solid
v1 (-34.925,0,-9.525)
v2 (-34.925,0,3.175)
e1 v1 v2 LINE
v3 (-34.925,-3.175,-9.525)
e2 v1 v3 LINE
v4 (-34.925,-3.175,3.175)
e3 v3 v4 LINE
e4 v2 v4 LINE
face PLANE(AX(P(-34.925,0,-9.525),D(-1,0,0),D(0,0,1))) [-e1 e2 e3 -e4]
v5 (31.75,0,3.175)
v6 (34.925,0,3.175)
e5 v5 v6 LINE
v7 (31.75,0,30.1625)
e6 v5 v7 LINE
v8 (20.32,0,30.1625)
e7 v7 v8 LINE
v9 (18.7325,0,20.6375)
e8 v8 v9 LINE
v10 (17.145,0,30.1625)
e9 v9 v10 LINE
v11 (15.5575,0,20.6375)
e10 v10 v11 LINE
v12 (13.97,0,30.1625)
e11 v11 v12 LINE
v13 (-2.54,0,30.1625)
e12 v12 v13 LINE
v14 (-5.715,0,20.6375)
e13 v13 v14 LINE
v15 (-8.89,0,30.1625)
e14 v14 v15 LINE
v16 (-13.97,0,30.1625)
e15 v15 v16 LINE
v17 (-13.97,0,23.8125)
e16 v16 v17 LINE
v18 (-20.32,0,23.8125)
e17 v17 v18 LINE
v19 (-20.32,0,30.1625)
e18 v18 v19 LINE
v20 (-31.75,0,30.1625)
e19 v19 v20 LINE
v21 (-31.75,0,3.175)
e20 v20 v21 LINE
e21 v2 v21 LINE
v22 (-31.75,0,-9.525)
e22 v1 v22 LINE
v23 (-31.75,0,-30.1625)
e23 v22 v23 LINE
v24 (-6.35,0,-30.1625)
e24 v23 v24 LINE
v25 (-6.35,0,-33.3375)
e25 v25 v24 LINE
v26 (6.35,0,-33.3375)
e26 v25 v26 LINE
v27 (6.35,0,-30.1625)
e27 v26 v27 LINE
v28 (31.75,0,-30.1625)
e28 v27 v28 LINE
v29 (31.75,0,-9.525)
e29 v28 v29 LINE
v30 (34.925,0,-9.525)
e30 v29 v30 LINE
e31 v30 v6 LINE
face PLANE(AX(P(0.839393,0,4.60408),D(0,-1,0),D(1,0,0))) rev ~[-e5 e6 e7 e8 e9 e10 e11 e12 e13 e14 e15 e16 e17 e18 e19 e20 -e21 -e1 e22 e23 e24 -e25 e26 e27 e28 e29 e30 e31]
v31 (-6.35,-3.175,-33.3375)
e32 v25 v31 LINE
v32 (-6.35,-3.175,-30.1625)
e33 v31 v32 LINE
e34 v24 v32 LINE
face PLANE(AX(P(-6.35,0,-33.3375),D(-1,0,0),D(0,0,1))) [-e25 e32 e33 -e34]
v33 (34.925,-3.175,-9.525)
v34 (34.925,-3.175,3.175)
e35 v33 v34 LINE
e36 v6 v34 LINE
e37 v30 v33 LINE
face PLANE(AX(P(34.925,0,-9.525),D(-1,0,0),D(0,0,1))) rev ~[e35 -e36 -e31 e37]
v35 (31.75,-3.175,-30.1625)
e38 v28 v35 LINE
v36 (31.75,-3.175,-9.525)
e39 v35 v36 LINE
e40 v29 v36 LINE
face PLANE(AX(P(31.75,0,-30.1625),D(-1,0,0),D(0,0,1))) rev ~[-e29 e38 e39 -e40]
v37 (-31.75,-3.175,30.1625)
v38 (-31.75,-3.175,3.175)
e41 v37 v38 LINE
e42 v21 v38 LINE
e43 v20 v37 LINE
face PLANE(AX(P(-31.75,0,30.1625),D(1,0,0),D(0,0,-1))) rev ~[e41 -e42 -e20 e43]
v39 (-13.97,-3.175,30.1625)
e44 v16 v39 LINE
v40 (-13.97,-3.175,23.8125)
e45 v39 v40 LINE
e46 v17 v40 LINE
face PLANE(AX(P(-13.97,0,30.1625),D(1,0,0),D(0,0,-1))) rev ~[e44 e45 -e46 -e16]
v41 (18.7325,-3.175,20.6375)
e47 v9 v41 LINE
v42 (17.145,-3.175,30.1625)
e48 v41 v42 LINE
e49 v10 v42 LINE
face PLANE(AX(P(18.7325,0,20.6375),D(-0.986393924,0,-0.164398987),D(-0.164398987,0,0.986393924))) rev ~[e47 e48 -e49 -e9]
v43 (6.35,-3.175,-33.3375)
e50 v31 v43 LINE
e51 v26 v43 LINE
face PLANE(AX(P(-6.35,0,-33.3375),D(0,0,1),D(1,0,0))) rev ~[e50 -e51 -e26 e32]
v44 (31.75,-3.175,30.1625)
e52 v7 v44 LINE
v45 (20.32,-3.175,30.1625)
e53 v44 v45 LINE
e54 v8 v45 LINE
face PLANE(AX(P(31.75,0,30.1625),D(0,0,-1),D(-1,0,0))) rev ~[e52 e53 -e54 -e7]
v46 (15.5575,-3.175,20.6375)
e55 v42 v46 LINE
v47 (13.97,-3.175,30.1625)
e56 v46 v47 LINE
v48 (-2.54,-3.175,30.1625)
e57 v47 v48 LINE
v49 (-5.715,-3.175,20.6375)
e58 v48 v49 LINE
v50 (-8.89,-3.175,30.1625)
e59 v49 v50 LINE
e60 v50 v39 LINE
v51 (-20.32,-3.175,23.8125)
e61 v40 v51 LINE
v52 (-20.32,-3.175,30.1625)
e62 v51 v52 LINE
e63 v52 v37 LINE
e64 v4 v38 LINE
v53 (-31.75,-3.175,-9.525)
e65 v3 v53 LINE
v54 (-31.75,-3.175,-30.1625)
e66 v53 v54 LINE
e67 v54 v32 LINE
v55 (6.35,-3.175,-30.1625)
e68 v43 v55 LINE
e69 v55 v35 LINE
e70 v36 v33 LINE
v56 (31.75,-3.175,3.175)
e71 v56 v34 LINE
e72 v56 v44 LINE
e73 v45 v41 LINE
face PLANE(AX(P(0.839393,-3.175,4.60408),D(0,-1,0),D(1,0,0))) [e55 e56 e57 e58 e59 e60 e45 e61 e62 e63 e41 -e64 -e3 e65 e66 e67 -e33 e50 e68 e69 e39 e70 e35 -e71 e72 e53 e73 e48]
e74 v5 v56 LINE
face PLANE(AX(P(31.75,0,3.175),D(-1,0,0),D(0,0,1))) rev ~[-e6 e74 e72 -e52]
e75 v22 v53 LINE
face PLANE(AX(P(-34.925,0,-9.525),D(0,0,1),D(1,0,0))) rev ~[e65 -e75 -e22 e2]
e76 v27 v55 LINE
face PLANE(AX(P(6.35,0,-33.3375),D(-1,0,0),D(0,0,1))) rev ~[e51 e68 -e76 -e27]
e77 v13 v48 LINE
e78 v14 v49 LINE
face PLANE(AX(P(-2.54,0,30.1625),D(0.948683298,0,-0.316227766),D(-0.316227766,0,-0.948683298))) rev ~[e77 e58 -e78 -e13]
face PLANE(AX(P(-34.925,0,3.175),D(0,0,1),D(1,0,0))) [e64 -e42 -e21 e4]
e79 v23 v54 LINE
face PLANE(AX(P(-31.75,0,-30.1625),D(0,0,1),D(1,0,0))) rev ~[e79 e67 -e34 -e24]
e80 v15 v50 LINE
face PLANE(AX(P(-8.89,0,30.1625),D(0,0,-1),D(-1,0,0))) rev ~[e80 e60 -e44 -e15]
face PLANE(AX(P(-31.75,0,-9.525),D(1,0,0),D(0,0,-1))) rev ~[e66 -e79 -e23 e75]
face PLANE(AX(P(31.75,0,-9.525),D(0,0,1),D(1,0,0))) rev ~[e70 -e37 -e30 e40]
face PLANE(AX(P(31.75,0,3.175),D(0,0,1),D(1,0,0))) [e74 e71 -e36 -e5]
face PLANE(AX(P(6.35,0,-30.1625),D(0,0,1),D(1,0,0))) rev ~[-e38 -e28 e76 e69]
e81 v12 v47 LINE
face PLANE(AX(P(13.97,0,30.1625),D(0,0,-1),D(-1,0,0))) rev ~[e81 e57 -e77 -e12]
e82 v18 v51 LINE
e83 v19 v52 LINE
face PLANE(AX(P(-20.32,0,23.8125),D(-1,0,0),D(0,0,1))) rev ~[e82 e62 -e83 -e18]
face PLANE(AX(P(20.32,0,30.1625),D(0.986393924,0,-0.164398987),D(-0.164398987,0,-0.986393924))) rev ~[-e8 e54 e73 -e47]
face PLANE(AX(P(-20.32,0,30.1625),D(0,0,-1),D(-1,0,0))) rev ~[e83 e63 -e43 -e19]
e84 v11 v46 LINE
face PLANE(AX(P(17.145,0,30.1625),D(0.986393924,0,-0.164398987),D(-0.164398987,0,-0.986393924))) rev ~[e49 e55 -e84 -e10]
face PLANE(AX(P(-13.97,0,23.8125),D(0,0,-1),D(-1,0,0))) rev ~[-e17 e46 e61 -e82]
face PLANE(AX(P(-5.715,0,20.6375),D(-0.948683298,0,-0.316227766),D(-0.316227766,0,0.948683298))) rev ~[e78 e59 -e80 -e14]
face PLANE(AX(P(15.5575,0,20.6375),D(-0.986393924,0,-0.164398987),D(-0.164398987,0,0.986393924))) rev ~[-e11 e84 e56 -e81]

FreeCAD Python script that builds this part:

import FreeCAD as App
import Part
import Sketcher

V = App.Vector
Q = App.Units.Quantity

doc = App.newDocument("Part")
body = doc.addObject("PartDesign::Body", "Body")

# Sketch on XZ plane
sketch1 = body.newObject("Sketcher::SketchObject", "Sketch")
sketch1.AttachmentSupport = (doc.getObject("XZ_Plane"), [""])
sketch1.MapMode = "FlatFace"
sketch1.addGeometry([
    Part.LineSegment(V(-20.32, 30.1625, 0), V(-31.75, 30.1625, 0)),  # 0
    Part.LineSegment(V(-31.75, 30.1625, 0), V(-31.75, 3.175, 0)),  # 1
    Part.LineSegment(V(-31.75, 3.175, 0), V(-34.925, 3.175, 0)),  # 2
    Part.LineSegment(V(-34.925, 3.175, 0), V(-34.925, -9.525, 0)),  # 3
    Part.LineSegment(V(-34.925, -9.525, 0), V(-31.75, -9.525, 0)),  # 4
    Part.LineSegment(V(-31.75, -9.525, 0), V(-31.75, -30.1625, 0)),  # 5
    Part.LineSegment(V(-31.75, -30.1625, 0), V(-6.35, -30.1625, 0)),  # 6
    Part.LineSegment(V(-6.35, -30.1625, 0), V(-6.35, -33.3375, 0)),  # 7
    Part.LineSegment(V(-6.35, -33.3375, 0), V(6.35, -33.3375, 0)),  # 8
    Part.LineSegment(V(6.35, -33.3375, 0), V(6.35, -30.1625, 0)),  # 9
    Part.LineSegment(V(6.35, -30.1625, 0), V(31.75, -30.1625, 0)),  # 10
    Part.LineSegment(V(31.75, -30.1625, 0), V(31.75, -9.525, 0)),  # 11
    Part.LineSegment(V(31.75, -9.525, 0), V(34.925, -9.525, 0)),  # 12
    Part.LineSegment(V(34.925, -9.525, 0), V(34.925, 3.175, 0)),  # 13
    Part.LineSegment(V(34.925, 3.175, 0), V(31.75, 3.175, 0)),  # 14
    Part.LineSegment(V(31.75, 3.175, 0), V(31.75, 30.1625, 0)),  # 15
    Part.LineSegment(V(31.75, 30.1625, 0), V(20.32, 30.1625, 0)),  # 16
    Part.LineSegment(V(20.32, 30.1625, 0), V(18.7325, 20.6375, 0)),  # 17
    Part.LineSegment(V(18.7325, 20.6375, 0), V(17.145, 30.1625, 0)),  # 18
    Part.LineSegment(V(17.145, 30.1625, 0), V(15.5575, 20.6375, 0)),  # 19
    Part.LineSegment(V(15.5575, 20.6375, 0), V(13.97, 30.1625, 0)),  # 20
    Part.LineSegment(V(13.97, 30.1625, 0), V(-2.54, 30.1625, 0)),  # 21
    Part.LineSegment(V(-2.54, 30.1625, 0), V(-5.715, 20.6375, 0)),  # 22
    Part.LineSegment(V(-5.715, 20.6375, 0), V(-8.89, 30.1625, 0)),  # 23
    Part.LineSegment(V(-8.89, 30.1625, 0), V(-13.97, 30.1625, 0)),  # 24
    Part.LineSegment(V(-13.97, 30.1625, 0), V(-13.97, 23.8125, 0)),  # 25
    Part.LineSegment(V(-13.97, 23.8125, 0), V(-20.32, 23.8125, 0)),  # 26
    Part.LineSegment(V(-20.32, 23.8125, 0), V(-20.32, 30.1625, 0)),  # 27
], False)
sketch1.addConstraint([
    Sketcher.Constraint("Coincident", 0, 2, 1, 1),
    Sketcher.Constraint("Coincident", 1, 2, 2, 1),
    Sketcher.Constraint("Coincident", 2, 2, 3, 1),
    Sketcher.Constraint("Coincident", 3, 2, 4, 1),
    Sketcher.Constraint("Coincident", 4, 2, 5, 1),
    Sketcher.Constraint("Coincident", 5, 2, 6, 1),
    Sketcher.Constraint("Coincident", 6, 2, 7, 1),
    Sketcher.Constraint("Coincident", 7, 2, 8, 1),
    Sketcher.Constraint("Coincident", 8, 2, 9, 1),
    Sketcher.Constraint("Coincident", 9, 2, 10, 1),
    Sketcher.Constraint("Coincident", 10, 2, 11, 1),
    Sketcher.Constraint("Coincident", 11, 2, 12, 1),
    Sketcher.Constraint("Coincident", 12, 2, 13, 1),
    Sketcher.Constraint("Coincident", 13, 2, 14, 1),
    Sketcher.Constraint("Coincident", 14, 2, 15, 1),
    Sketcher.Constraint("Coincident", 15, 2, 16, 1),
    Sketcher.Constraint("Coincident", 16, 2, 17, 1),
    Sketcher.Constraint("Coincident", 17, 2, 18, 1),
    Sketcher.Constraint("Coincident", 18, 2, 19, 1),
    Sketcher.Constraint("Coincident", 19, 2, 20, 1),
    Sketcher.Constraint("Coincident", 20, 2, 21, 1),
    Sketcher.Constraint("Coincident", 21, 2, 22, 1),
    Sketcher.Constraint("Coincident", 22, 2, 23, 1),
    Sketcher.Constraint("Coincident", 23, 2, 24, 1),
    Sketcher.Constraint("Coincident", 24, 2, 25, 1),
    Sketcher.Constraint("Coincident", 25, 2, 26, 1),
    Sketcher.Constraint("Coincident", 26, 2, 27, 1),
    Sketcher.Constraint("Coincident", 27, 2, 0, 1),
    Sketcher.Constraint("Horizontal", 0),
    Sketcher.Constraint("Vertical", 1),
    Sketcher.Constraint("Horizontal", 2),
    Sketcher.Constraint("Vertical", 3),
    Sketcher.Constraint("Horizontal", 4),
    Sketcher.Constraint("Vertical", 5),
    Sketcher.Constraint("Horizontal", 6),
    Sketcher.Constraint("Vertical", 7),
    Sketcher.Constraint("Horizontal", 8),
    Sketcher.Constraint("Vertical", 9),
    Sketcher.Constraint("Horizontal", 10),
    Sketcher.Constraint("Vertical", 11),
    Sketcher.Constraint("Horizontal", 12),
    Sketcher.Constraint("Vertical", 13),
    Sketcher.Constraint("Horizontal", 14),
    Sketcher.Constraint("Vertical", 15),
    Sketcher.Constraint("Horizontal", 16),
    Sketcher.Constraint("Horizontal", 21),
    Sketcher.Constraint("Horizontal", 24),
    Sketcher.Constraint("Vertical", 25),
    Sketcher.Constraint("Horizontal", 26),
    Sketcher.Constraint("Vertical", 27),
    Sketcher.Constraint("Symmetric", 0, 2, 10, 2, -1, 1),
    Sketcher.Constraint("Symmetric", 5, 2, 15, 2, -1, 1),
    Sketcher.Constraint("Symmetric", 6, 2, 9, 2, -2),
    Sketcher.Constraint("Symmetric", 4, 2, 11, 2, -2),
    Sketcher.Constraint("Symmetric", 2, 2, 13, 2, -2),
    Sketcher.Constraint("Symmetric", 20, 2, 24, 2, -2),
    Sketcher.Constraint("Parallel", 17, 19),
    Sketcher.Constraint("Parallel", 18, 20),
    Sketcher.Constraint("Horizontal", 16, 2, 18, 2),
    Sketcher.Constraint("Horizontal", 17, 2, 19, 2),
    Sketcher.Constraint("Horizontal", 18, 2, 20, 2),
    Sketcher.Constraint("Horizontal", 19, 2, 22, 2),
    Sketcher.Constraint("Equal", 0, 16),
    Sketcher.Constraint("Equal", 8, 3),
    Sketcher.Constraint("Equal", 14, 7),
    Sketcher.Constraint("Equal", 26, 25),
    Sketcher.Constraint("Equal", 17, 18),
    Sketcher.Constraint("Equal", 22, 23),
    Sketcher.Constraint("DistanceX", 6, 1, 6, 2, Q("1 in")),
    Sketcher.Constraint("DistanceX", 8, 1, 8, 2, Q("0.5 in")),
    Sketcher.Constraint("DistanceX", 24, 2, 24, 1, Q("0.2 in")),
    Sketcher.Constraint("DistanceX", 0, 2, 0, 1, Q("0.45 in")),
    Sketcher.Constraint("DistanceX", 21, 2, 21, 1, Q("0.65 in")),
    Sketcher.Constraint("DistanceX", 26, 2, 26, 1, Q("0.25 in")),
    Sketcher.Constraint("DistanceX", 18, 2, 13, 2, Q("0.7 in")),
    Sketcher.Constraint("DistanceY", 1, 2, 1, 1, Q("1.0625 in")),
    Sketcher.Constraint("DistanceY", 5, 2, 5, 1, Q("0.8125 in")),
    Sketcher.Constraint("DistanceY", -1, 1, 17, 2, Q("0.8125 in")),
])
pad1 = body.newObject("PartDesign::Pad", "Pad")
pad1.Profile = sketch1
pad1.Length = Q("0.125 in")

doc.recompute()
